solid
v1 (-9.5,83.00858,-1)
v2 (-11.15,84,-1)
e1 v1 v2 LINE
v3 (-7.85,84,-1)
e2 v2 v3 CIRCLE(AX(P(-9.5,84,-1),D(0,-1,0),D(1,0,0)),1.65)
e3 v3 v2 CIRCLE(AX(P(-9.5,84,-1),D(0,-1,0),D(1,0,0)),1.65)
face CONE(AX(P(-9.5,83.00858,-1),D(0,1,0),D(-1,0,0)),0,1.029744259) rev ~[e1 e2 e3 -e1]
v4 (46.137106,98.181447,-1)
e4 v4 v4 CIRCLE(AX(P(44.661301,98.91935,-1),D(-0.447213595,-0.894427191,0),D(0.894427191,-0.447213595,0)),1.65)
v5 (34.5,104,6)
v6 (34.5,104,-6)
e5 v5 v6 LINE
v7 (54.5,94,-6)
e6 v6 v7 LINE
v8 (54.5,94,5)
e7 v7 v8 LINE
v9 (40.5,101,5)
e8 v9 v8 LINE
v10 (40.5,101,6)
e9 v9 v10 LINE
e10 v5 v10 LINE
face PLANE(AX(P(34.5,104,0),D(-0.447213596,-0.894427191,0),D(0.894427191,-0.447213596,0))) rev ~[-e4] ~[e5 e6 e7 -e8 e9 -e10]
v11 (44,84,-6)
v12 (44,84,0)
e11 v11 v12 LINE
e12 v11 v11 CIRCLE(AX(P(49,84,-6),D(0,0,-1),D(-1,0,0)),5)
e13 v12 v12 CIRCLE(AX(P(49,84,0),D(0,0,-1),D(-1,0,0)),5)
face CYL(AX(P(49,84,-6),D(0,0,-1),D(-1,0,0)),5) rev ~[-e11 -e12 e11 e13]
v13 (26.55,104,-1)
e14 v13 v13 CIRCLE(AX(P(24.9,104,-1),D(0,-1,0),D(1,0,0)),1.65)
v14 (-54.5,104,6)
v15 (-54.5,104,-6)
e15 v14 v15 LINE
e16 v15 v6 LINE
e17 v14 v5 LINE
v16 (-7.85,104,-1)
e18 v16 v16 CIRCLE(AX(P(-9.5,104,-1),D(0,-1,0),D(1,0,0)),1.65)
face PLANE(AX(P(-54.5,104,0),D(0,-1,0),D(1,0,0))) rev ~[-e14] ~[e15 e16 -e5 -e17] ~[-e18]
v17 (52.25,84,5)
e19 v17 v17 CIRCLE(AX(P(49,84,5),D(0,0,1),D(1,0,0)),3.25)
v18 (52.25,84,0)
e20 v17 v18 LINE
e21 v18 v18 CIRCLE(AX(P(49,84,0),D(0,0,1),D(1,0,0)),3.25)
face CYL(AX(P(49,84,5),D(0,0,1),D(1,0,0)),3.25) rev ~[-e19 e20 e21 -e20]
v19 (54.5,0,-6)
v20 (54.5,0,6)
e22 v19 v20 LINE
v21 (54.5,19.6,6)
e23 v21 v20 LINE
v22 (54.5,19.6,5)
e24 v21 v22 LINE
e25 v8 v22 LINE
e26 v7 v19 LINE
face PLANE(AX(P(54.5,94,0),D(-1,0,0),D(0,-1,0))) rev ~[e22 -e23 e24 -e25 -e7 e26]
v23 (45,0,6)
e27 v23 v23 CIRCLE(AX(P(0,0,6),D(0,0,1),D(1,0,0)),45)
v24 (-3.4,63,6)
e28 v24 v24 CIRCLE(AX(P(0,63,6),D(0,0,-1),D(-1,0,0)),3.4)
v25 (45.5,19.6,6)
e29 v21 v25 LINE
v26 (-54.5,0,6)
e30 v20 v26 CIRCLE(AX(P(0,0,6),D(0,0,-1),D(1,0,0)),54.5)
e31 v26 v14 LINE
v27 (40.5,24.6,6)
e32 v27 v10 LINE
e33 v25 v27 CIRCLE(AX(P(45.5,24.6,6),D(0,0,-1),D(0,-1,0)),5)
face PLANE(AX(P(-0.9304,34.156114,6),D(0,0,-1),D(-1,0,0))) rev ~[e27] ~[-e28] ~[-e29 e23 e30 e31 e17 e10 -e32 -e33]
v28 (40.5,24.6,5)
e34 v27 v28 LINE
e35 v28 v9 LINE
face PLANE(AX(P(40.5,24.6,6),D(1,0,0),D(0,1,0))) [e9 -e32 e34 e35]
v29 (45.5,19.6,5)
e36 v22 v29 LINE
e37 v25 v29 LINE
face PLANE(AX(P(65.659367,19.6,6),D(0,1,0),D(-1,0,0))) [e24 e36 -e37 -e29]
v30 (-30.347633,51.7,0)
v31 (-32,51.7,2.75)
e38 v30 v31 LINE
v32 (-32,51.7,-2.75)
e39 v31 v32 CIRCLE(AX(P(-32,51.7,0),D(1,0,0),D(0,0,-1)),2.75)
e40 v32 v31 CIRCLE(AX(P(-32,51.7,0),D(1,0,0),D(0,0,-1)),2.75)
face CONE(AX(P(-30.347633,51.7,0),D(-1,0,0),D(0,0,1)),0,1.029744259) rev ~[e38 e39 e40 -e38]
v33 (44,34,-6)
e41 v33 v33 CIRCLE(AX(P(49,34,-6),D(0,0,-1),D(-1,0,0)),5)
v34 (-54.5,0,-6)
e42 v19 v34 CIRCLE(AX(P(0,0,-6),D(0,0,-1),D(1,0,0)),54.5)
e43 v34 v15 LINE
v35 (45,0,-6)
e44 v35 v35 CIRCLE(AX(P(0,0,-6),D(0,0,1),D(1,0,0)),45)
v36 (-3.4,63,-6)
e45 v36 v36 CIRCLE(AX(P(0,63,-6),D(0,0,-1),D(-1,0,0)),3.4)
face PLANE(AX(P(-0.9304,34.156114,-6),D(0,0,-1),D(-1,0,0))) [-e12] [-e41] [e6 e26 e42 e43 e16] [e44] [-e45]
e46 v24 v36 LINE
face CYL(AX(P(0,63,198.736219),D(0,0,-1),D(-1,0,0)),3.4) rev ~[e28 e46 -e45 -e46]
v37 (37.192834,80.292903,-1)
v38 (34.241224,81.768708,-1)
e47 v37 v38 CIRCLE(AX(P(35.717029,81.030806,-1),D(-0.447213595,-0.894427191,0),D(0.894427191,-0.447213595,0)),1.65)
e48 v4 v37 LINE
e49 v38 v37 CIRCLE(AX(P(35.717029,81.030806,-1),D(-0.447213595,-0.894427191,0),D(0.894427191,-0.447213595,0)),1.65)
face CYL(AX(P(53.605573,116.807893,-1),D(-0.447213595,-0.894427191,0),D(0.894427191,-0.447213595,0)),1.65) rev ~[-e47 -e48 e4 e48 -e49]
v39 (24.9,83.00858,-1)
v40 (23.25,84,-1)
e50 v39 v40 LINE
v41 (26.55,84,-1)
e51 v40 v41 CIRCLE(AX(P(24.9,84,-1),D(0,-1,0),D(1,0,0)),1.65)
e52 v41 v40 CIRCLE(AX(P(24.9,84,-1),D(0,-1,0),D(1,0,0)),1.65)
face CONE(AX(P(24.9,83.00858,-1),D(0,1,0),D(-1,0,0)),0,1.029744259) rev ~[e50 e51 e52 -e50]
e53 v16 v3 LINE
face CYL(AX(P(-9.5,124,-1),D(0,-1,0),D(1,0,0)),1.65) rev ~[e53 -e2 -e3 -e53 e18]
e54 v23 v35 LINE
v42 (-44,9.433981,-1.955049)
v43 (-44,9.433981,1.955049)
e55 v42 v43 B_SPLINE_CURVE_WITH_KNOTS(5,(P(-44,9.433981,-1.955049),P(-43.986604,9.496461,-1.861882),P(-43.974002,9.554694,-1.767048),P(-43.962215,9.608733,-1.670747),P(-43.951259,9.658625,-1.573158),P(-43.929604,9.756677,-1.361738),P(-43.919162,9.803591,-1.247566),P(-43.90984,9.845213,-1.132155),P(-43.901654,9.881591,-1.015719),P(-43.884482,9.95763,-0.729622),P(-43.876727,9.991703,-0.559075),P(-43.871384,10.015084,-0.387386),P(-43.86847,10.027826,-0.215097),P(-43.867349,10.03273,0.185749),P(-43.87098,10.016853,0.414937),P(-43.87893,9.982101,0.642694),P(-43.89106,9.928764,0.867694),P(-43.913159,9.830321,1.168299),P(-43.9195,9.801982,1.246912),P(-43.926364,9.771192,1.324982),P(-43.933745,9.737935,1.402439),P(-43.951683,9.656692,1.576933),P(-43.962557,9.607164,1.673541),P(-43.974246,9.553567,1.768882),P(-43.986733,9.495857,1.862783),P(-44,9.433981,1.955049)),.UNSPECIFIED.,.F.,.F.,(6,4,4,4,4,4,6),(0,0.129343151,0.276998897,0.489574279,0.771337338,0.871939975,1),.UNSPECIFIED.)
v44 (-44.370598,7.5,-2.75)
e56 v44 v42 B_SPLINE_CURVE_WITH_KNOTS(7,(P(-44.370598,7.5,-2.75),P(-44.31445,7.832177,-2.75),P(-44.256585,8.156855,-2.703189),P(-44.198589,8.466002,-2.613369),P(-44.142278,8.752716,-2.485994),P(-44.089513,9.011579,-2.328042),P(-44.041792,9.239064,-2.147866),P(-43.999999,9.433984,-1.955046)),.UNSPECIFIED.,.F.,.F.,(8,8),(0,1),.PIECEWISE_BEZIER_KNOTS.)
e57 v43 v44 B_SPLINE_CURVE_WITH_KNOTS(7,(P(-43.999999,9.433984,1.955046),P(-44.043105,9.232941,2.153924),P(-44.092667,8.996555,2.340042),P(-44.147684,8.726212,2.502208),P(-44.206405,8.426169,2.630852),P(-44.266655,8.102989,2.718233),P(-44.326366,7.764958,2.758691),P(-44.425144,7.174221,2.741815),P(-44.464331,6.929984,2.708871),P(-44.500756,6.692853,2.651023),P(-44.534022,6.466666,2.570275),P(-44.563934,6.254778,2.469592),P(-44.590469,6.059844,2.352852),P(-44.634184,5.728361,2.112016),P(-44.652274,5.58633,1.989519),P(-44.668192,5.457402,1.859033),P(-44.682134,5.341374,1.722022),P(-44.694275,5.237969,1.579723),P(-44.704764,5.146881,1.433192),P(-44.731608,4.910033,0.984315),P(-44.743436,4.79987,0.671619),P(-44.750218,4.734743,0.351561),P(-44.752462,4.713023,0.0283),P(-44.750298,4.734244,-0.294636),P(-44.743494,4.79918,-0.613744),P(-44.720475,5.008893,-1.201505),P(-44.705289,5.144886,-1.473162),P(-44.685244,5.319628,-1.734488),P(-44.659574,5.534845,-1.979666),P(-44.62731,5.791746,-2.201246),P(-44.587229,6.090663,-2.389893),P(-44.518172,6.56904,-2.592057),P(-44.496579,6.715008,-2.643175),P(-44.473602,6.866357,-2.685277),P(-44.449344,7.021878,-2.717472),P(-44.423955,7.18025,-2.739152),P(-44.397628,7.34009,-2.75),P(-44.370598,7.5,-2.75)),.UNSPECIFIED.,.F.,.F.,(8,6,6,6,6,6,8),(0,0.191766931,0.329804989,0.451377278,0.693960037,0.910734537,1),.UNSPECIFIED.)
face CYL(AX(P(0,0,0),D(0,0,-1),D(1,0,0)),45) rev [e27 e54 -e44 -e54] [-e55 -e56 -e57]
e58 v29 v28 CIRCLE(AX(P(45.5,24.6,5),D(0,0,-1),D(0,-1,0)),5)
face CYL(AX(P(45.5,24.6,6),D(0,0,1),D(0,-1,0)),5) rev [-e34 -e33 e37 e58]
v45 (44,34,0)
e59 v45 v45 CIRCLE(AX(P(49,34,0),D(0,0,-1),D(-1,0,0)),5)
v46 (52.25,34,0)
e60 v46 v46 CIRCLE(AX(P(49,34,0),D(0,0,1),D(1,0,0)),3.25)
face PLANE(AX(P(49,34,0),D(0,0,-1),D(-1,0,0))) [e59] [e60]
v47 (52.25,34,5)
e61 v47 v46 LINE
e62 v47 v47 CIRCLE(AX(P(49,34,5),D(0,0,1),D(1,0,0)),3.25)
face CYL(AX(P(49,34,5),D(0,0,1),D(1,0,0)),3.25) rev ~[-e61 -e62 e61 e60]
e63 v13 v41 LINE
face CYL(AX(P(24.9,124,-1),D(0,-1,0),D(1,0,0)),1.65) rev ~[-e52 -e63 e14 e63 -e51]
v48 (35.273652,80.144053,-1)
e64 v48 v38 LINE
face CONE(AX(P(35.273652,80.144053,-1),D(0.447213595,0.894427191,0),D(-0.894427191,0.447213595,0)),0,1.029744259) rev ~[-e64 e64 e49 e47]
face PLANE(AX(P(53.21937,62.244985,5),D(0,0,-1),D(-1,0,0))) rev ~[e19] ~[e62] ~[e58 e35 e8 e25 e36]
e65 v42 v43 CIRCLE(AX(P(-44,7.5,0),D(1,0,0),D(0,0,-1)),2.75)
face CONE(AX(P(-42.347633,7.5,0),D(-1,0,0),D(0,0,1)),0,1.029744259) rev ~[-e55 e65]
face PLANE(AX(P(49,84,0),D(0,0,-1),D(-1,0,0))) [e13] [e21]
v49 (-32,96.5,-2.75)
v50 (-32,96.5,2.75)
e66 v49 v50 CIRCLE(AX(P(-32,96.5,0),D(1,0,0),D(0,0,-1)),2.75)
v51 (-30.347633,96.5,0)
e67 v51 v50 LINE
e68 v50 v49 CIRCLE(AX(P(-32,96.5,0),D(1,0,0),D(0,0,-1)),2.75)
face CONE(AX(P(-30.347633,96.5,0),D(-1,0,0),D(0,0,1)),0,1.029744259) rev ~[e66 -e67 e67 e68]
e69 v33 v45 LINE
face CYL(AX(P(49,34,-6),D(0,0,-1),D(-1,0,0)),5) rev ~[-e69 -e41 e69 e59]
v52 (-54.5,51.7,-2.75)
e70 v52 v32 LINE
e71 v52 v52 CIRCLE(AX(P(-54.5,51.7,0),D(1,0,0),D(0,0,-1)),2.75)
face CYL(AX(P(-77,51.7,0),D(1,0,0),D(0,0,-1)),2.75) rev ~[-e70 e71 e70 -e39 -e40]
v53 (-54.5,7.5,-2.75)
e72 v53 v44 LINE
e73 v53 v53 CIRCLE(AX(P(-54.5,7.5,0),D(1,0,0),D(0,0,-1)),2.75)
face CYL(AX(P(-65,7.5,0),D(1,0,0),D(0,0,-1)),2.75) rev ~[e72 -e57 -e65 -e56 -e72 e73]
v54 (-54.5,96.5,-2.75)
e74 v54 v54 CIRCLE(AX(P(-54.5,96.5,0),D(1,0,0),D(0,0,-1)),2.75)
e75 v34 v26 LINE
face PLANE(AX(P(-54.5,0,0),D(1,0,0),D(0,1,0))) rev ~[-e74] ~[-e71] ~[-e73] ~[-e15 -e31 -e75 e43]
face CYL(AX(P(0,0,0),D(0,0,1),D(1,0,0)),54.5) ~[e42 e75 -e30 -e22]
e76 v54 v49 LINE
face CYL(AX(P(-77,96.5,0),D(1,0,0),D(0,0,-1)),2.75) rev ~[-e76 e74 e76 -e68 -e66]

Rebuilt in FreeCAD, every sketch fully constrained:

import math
import FreeCAD as App
import Part
import Sketcher
Q = App.Units.Quantity

doc = App.newDocument("Part")
params = doc.addObject("Spreadsheet::Sheet", "Params")
for row, (alias, value) in enumerate([
    ("sketch1_diameter", "90 mm"),
    ("sketch1_radius", "54.5 mm"),
    ("sketch1_width", "89 mm"),
    ("sketch1_height", "104 mm"),
    ("sketch1_height2", "94 mm"),
    ("pad1_length", "12 mm"),
    ("sketch2_diameter", "3.3 mm"),
    ("hole_diameter", "3.3 mm"),
    ("hole_depth", "20 mm"),
    ("sketch3_diameter", "3.3 mm"),
    ("hole2_diameter", "3.3 mm"),
    ("hole2_depth", "20 mm"),
    ("sketch4_radius", "5 mm"),
    ("sketch4_height", "79.4 mm"),
    ("pocket1_length", "1 mm"),
    ("sketch5_diameter", "6.5 mm"),
    ("pocket2_length", "37.7 mm"),
    ("sketch6_diameter", "10 mm"),
    ("pocket3_length", "6 mm"),
    ("sketch7_diameter", "5.5 mm"),
    ("hole3_diameter", "5.5 mm"),
    ("hole3_depth", "22.5 mm"),
    ("sketch8_diameter", "5.5 mm"),
    ("hole4_diameter", "5.5 mm"),
    ("hole4_depth", "10.5 mm"),
    ("sketch9_diameter", "6.8 mm"),
    ("hole5_diameter", "6.8 mm"),
], start=1):
    params.set(f"A{row}", alias)
    params.set(f"B{row}", "=" + value)
    params.setAlias(f"B{row}", alias)

body = doc.addObject("PartDesign::Body", "Body")

# Sketch on XY plane
sketch1 = body.newObject("Sketcher::SketchObject", "Sketch")
sketch1.AttachmentSupport = (doc.getObject("XY_Plane"), [""])
sketch1.MapMode = "FlatFace"
sketch1.addGeometry([
    Part.LineSegment(App.Vector(-54, 104, 0), App.Vector(-54, 0, 0)),  # 0
    Part.ArcOfCircle(Part.Circle(App.Vector(0, 0, 0), App.Vector(0, 0, 1), 54), math.radians(180), math.radians(360)),  # 1
    Part.LineSegment(App.Vector(54, 0, 0), App.Vector(54, 94, 0)),  # 2
    Part.LineSegment(App.Vector(54, 94, 0), App.Vector(34, 104, 0)),  # 3
    Part.LineSegment(App.Vector(34, 104, 0), App.Vector(-54, 104, 0)),  # 4
    Part.Circle(App.Vector(0, 0, 0), App.Vector(0, 0, 1), 45),  # 5
], False)
sketch1.addConstraint([
    Sketcher.Constraint("Tangent", 0, 2, 1, 1),
    Sketcher.Constraint("Tangent", 1, 2, 2, 1),
    Sketcher.Constraint("Coincident", 2, 2, 3, 1),
    Sketcher.Constraint("Coincident", 3, 2, 4, 1),
    Sketcher.Constraint("Coincident", 4, 2, 0, 1),
    Sketcher.Constraint("Vertical", 0),
    Sketcher.Constraint("Vertical", 2),
    Sketcher.Constraint("Horizontal", 4),
    Sketcher.Constraint("Coincident", 1, 3, -1, 1),
    Sketcher.Constraint("Coincident", 5, 3, -1, 1),
    Sketcher.Constraint("Diameter", 5, Q("90 mm")),
    Sketcher.Constraint("Radius", 1, Q("54.5 mm")),
    Sketcher.Constraint("DistanceX", 4, 2, 4, 1, Q("89 mm")),
    Sketcher.Constraint("DistanceY", 0, 2, 0, 1, Q("104 mm")),
    Sketcher.Constraint("DistanceY", 2, 1, 2, 2, Q("94 mm")),
])
sketch1.setExpression("Constraints[10]", "Params.sketch1_diameter")
sketch1.setExpression("Constraints[11]", "Params.sketch1_radius")
sketch1.setExpression("Constraints[12]", "Params.sketch1_width")
sketch1.setExpression("Constraints[13]", "Params.sketch1_height")
sketch1.setExpression("Constraints[14]", "Params.sketch1_height2")
pad1 = body.newObject("PartDesign::Pad", "Pad")
pad1.Profile = sketch1
pad1.setExpression("Length", "Params.pad1_length")
pad1.Midplane = True

# Sketch on an angled plane
sketch2 = body.newObject("Sketcher::SketchObject", "Sketch001")
sketch2.Placement = App.Placement(App.Vector(48.5, 97, 0), App.Rotation(App.Vector(-0.894427191, 0.447213595, 0), App.Vector(0, 0, 1), App.Vector(0.447213595, 0.894427191, 0), "ZXY"))
sketch2.addGeometry(Part.Circle(App.Vector(4.3, -1, 0), App.Vector(0, 0, 1), 1.6), False)
sketch2.addConstraint([
    Sketcher.Constraint("Diameter", 0, Q("3.3 mm")),
    Sketcher.Constraint("DistanceY", 0, 3, -1, 1, Q("1 mm")),
    Sketcher.Constraint("DistanceX", -1, 1, 0, 3, Q("4.291796 mm")),
])
sketch2.setExpression("Constraints[0]", "Params.sketch2_diameter")
doc.recompute()
hole = body.newObject("PartDesign::Hole", "Hole")
hole.Profile = sketch2
hole.ThreadType = "None"
hole.setExpression("Diameter", "Params.hole_diameter")
hole.DepthType = "Dimension"
hole.setExpression("Depth", "Params.hole_depth")
hole.DrillPoint = "Angled"
hole.DrillPointAngle = 118

# Sketch on XZ plane
sketch3 = body.newObject("Sketcher::SketchObject", "Sketch002")
sketch3.AttachmentSupport = (doc.getObject("XZ_Plane"), [""])
sketch3.MapMode = "FlatFace"
sketch3.AttachmentOffset = App.Placement(App.Vector(0, 0, -104), App.Rotation())
sketch3.addGeometry([
    Part.Circle(App.Vector(-9.5, -1, 0), App.Vector(0, 0, 1), 1.6),
    Part.Circle(App.Vector(24.9, -1, 0), App.Vector(0, 0, 1), 1.6),
], False)
sketch3.addConstraint([
    Sketcher.Constraint("Equal", 0, 1),
    Sketcher.Constraint("Horizontal", 0, 3, 1, 3),
    Sketcher.Constraint("Diameter", 0, Q("3.3 mm")),
    Sketcher.Constraint("DistanceY", 0, 3, -1, 1, Q("1 mm")),
    Sketcher.Constraint("DistanceX", 0, 3, -1, 1, Q("9.5 mm")),
    Sketcher.Constraint("DistanceX", -1, 1, 1, 3, Q("24.9 mm")),
])
sketch3.setExpression("Constraints[2]", "Params.sketch3_diameter")
doc.recompute()
hole2 = body.newObject("PartDesign::Hole", "Hole001")
hole2.Profile = sketch3
hole2.ThreadType = "None"
hole2.setExpression("Diameter", "Params.hole2_diameter")
hole2.DepthType = "Dimension"
hole2.setExpression("Depth", "Params.hole2_depth")
hole2.DrillPoint = "Angled"
hole2.DrillPointAngle = 118
hole2.Reversed = True

# Sketch on XY plane
sketch4 = body.newObject("Sketcher::SketchObject", "Sketch003")
sketch4.AttachmentSupport = (doc.getObject("XY_Plane"), [""])
sketch4.MapMode = "FlatFace"
sketch4.AttachmentOffset = App.Placement(App.Vector(0, 0, 6), App.Rotation())
sketch4.addGeometry([
    Part.LineSegment(App.Vector(66, 104, 0), App.Vector(40, 104, 0)),  # 0
    Part.LineSegment(App.Vector(40, 104, 0), App.Vector(40, 25, 0)),  # 1
    Part.ArcOfCircle(Part.Circle(App.Vector(46, 25, 0), App.Vector(0, 0, 1), 5), math.radians(180), math.radians(270)),  # 2
    Part.LineSegment(App.Vector(46, 20, 0), App.Vector(66, 20, 0)),  # 3
    Part.LineSegment(App.Vector(66, 20, 0), App.Vector(66, 104, 0)),  # 4
], False)
sketch4.addConstraint([
    Sketcher.Constraint("Coincident", 0, 2, 1, 1),
    Sketcher.Constraint("Tangent", 1, 2, 2, 1),
    Sketcher.Constraint("Tangent", 2, 2, 3, 1),
    Sketcher.Constraint("Coincident", 3, 2, 4, 1),
    Sketcher.Constraint("Coincident", 4, 2, 0, 1),
    Sketcher.Constraint("Horizontal", 0),
    Sketcher.Constraint("Vertical", 1),
    Sketcher.Constraint("Horizontal", 3),
    Sketcher.Constraint("Vertical", 4),
    Sketcher.Constraint("Radius", 2, Q("5 mm")),
    Sketcher.Constraint("DistanceY", 1, 2, 1, 1, Q("79.4 mm")),
    Sketcher.Constraint("DistanceY", -1, 1, 0, 2, Q("104 mm")),
    Sketcher.Constraint("DistanceX", -1, 1, 2, 3, Q("45.5 mm")),
    Sketcher.Constraint("DistanceX", 0, 2, 0, 1, Q("25.159367 mm")),
])
sketch4.setExpression("Constraints[9]", "Params.sketch4_radius")
sketch4.setExpression("Constraints[10]", "Params.sketch4_height")
pocket1 = body.newObject("PartDesign::Pocket", "Pocket")
pocket1.Profile = sketch4
pocket1.setExpression("Length", "Params.pocket1_length")

# Sketch on XY plane
sketch5 = body.newObject("Sketcher::SketchObject", "Sketch004")
sketch5.AttachmentSupport = (doc.getObject("XY_Plane"), [""])
sketch5.MapMode = "FlatFace"
sketch5.AttachmentOffset = App.Placement(App.Vector(0, 0, 5), App.Rotation())
sketch5.addGeometry([
    Part.Circle(App.Vector(49, 84, 0), App.Vector(0, 0, 1), 3.2),
    Part.Circle(App.Vector(49, 34, 0), App.Vector(0, 0, 1), 3.2),
], False)
sketch5.addConstraint([
    Sketcher.Constraint("Equal", 0, 1),
    Sketcher.Constraint("Vertical", 0, 3, 1, 3),
    Sketcher.Constraint("Diameter", 0, Q("6.5 mm")),
    Sketcher.Constraint("DistanceX", -1, 1, 0, 3, Q("49 mm")),
    Sketcher.Constraint("DistanceY", -1, 1, 0, 3, Q("84 mm")),
    Sketcher.Constraint("DistanceY", -1, 1, 1, 3, Q("34 mm")),
])
sketch5.setExpression("Constraints[2]", "Params.sketch5_diameter")
pocket2 = body.newObject("PartDesign::Pocket", "Pocket001")
pocket2.Profile = sketch5
pocket2.setExpression("Length", "Params.pocket2_length")

# Sketch on XY plane
sketch6 = body.newObject("Sketcher::SketchObject", "Sketch005")
sketch6.AttachmentSupport = (doc.getObject("XY_Plane"), [""])
sketch6.MapMode = "FlatFace"
sketch6.AttachmentOffset = App.Placement(App.Vector(0, 0, -6), App.Rotation())
sketch6.addGeometry([
    Part.Circle(App.Vector(49, 84, 0), App.Vector(0, 0, 1), 5),
    Part.Circle(App.Vector(49, 34, 0), App.Vector(0, 0, 1), 5),
], False)
sketch6.addConstraint([
    Sketcher.Constraint("Equal", 0, 1),
    Sketcher.Constraint("Vertical", 0, 3, 1, 3),
    Sketcher.Constraint("Diameter", 0, Q("10 mm")),
    Sketcher.Constraint("DistanceX", -1, 1, 0, 3, Q("49 mm")),
    Sketcher.Constraint("DistanceY", -1, 1, 0, 3, Q("84 mm")),
    Sketcher.Constraint("DistanceY", -1, 1, 1, 3, Q("34 mm")),
])
sketch6.setExpression("Constraints[2]", "Params.sketch6_diameter")
pocket3 = body.newObject("PartDesign::Pocket", "Pocket002")
pocket3.Profile = sketch6
pocket3.setExpression("Length", "Params.pocket3_length")
pocket3.Reversed = True

# Sketch on YZ plane
sketch7 = body.newObject("Sketcher::SketchObject", "Sketch006")
sketch7.AttachmentSupport = (doc.getObject("YZ_Plane"), [""])
sketch7.MapMode = "FlatFace"
sketch7.AttachmentOffset = App.Placement(App.Vector(0, 0, -54.5), App.Rotation())
sketch7.addGeometry([
    Part.Circle(App.Vector(96.5, 0, 0), App.Vector(0, 0, 1), 2.8),
    Part.Circle(App.Vector(51.7, 0, 0), App.Vector(0, 0, 1), 2.8),
], False)
sketch7.addConstraint([
    Sketcher.Constraint("Equal", 0, 1),
    Sketcher.Constraint("PointOnObject", 0, 3, -1),
    Sketcher.Constraint("PointOnObject", 1, 3, -1),
    Sketcher.Constraint("Diameter", 0, Q("5.5 mm")),
    Sketcher.Constraint("DistanceX", -1, 1, 0, 3, Q("96.5 mm")),
    Sketcher.Constraint("DistanceX", -1, 1, 1, 3, Q("51.7 mm")),
])
sketch7.setExpression("Constraints[3]", "Params.sketch7_diameter")
doc.recompute()
hole3 = body.newObject("PartDesign::Hole", "Hole002")
hole3.Profile = sketch7
hole3.ThreadType = "None"
hole3.setExpression("Diameter", "Params.hole3_diameter")
hole3.DepthType = "Dimension"
hole3.setExpression("Depth", "Params.hole3_depth")
hole3.DrillPoint = "Angled"
hole3.DrillPointAngle = 118
hole3.Reversed = True

# Sketch on YZ plane
sketch8 = body.newObject("Sketcher::SketchObject", "Sketch007")
sketch8.AttachmentSupport = (doc.getObject("YZ_Plane"), [""])
sketch8.MapMode = "FlatFace"
sketch8.AttachmentOffset = App.Placement(App.Vector(0, 0, -54.5), App.Rotation())
sketch8.addGeometry(Part.Circle(App.Vector(7.5, 0, 0), App.Vector(0, 0, 1), 2.8), False)
sketch8.addConstraint([
    Sketcher.Constraint("PointOnObject", 0, 3, -1),
    Sketcher.Constraint("Diameter", 0, Q("5.5 mm")),
    Sketcher.Constraint("DistanceX", -1, 1, 0, 3, Q("7.5 mm")),
])
sketch8.setExpression("Constraints[1]", "Params.sketch8_diameter")
doc.recompute()
hole4 = body.newObject("PartDesign::Hole", "Hole003")
hole4.Profile = sketch8
hole4.ThreadType = "None"
hole4.setExpression("Diameter", "Params.hole4_diameter")
hole4.DepthType = "Dimension"
hole4.setExpression("Depth", "Params.hole4_depth")
hole4.DrillPoint = "Angled"
hole4.DrillPointAngle = 118
hole4.Reversed = True

# Sketch on XY plane
sketch9 = body.newObject("Sketcher::SketchObject", "Sketch008")
sketch9.AttachmentSupport = (doc.getObject("XY_Plane"), [""])
sketch9.MapMode = "FlatFace"
sketch9.AttachmentOffset = App.Placement(App.Vector(0, 0, 6), App.Rotation())
sketch9.addGeometry(Part.Circle(App.Vector(0, 63, 0), App.Vector(0, 0, 1), 3.4), False)
sketch9.addConstraint([
    Sketcher.Constraint("PointOnObject", 0, 3, -2),
    Sketcher.Constraint("Diameter", 0, Q("6.8 mm")),
    Sketcher.Constraint("DistanceY", -1, 1, 0, 3, Q("63 mm")),
])
sketch9.setExpression("Constraints[1]", "Params.sketch9_diameter")
doc.recompute()
hole5 = body.newObject("PartDesign::Hole", "Hole004")
hole5.Profile = sketch9
hole5.ThreadType = "None"
hole5.setExpression("Diameter", "Params.hole5_diameter")
hole5.DepthType = "ThroughAll"

doc.recompute()
